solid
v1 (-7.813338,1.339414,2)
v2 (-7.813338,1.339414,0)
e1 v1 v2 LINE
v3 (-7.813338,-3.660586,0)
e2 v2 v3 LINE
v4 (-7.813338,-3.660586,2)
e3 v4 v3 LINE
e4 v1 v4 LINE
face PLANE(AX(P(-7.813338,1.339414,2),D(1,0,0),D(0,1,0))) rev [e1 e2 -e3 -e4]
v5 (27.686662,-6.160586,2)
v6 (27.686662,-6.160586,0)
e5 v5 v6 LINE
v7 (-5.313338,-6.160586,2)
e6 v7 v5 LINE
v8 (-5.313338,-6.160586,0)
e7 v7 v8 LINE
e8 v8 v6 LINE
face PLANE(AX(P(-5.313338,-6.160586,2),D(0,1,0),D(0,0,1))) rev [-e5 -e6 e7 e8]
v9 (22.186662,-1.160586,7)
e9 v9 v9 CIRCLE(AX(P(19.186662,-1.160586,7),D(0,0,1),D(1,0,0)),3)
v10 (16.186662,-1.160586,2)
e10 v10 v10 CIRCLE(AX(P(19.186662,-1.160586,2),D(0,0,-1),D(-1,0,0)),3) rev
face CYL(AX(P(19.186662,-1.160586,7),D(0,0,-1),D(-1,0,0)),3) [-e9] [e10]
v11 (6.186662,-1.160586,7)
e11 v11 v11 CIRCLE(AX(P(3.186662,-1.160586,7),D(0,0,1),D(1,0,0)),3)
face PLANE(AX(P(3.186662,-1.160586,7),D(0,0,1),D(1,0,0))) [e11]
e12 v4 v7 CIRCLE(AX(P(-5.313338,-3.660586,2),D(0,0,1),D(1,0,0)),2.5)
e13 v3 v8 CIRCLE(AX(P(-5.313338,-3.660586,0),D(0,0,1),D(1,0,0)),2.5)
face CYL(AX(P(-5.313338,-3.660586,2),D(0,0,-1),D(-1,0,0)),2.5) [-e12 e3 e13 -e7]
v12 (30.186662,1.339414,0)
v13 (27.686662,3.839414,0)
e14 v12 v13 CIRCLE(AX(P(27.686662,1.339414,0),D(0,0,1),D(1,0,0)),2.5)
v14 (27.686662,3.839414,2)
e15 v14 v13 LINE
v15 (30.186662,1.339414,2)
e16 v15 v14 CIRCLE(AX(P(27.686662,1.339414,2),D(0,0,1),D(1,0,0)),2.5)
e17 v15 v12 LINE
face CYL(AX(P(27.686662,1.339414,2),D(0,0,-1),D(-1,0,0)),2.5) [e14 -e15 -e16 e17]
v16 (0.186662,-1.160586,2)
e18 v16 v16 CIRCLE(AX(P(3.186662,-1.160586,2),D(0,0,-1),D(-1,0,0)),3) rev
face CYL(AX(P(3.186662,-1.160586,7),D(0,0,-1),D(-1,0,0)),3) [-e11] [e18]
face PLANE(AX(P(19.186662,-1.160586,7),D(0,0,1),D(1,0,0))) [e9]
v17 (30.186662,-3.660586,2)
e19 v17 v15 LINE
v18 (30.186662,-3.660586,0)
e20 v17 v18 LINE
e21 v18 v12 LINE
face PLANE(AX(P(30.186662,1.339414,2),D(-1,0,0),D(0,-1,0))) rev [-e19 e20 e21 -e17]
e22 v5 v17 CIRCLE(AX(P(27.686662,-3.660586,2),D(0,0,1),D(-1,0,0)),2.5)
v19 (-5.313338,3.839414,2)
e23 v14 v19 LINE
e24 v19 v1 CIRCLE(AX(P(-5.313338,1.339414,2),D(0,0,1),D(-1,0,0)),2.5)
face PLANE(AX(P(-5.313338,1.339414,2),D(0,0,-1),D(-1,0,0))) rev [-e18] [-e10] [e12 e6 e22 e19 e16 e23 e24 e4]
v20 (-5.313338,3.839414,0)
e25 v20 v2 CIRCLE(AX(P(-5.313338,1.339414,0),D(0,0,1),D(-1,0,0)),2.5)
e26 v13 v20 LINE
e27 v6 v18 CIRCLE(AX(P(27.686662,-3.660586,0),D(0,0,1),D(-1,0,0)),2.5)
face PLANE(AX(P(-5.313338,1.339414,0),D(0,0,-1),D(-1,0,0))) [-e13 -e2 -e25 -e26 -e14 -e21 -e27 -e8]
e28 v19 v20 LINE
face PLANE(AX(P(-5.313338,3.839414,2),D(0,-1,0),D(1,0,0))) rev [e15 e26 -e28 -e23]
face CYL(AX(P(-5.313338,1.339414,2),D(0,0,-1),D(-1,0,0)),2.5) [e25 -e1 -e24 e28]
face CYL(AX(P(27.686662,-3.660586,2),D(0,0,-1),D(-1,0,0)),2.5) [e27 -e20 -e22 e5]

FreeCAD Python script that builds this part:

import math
import FreeCAD as App
import Part
import Sketcher
Q = App.Units.Quantity

doc = App.newDocument("Part")
params = doc.addObject("Spreadsheet::Sheet", "Params")
for row, (alias, value) in enumerate([
    ("sketch1_radius", "2.5 mm"),
    ("sketch1_width", "33 mm"),
    ("sketch1_height", "5 mm"),
    ("pad1_length", "2 mm"),
    ("sketch2_diameter", "6 mm"),
    ("pad2_length", "5 mm"),
], start=1):
    params.set(f"A{row}", alias)
    params.set(f"B{row}", "=" + value)
    params.setAlias(f"B{row}", alias)

body = doc.addObject("PartDesign::Body", "Body")

sketch1 = body.newObject("Sketcher::SketchObject", "Sketch")
sketch1.AttachmentSupport = (doc.getObject("XY_Plane"), [""])
sketch1.MapMode = "FlatFace"
sketch1.addGeometry([
    Part.LineSegment(App.Vector(27.7, 3.8, 0), App.Vector(-5.3, 3.8, 0)),
    Part.ArcOfCircle(Part.Circle(App.Vector(-5.3, 1.3, 0), App.Vector(0, 0, 1), 2.5), math.radians(90), math.radians(180)),
    Part.LineSegment(App.Vector(-7.8, 1.3, 0), App.Vector(-7.8, -3.7, 0)),
    Part.ArcOfCircle(Part.Circle(App.Vector(-5.3, -3.7, 0), App.Vector(0, 0, 1), 2.5), math.radians(180), math.radians(270)),
    Part.LineSegment(App.Vector(-5.3, -6.2, 0), App.Vector(27.7, -6.2, 0)),
    Part.ArcOfCircle(Part.Circle(App.Vector(27.7, -3.7, 0), App.Vector(0, 0, 1), 2.5), math.radians(-90), math.radians(0)),
    Part.LineSegment(App.Vector(30.2, -3.7, 0), App.Vector(30.2, 1.3, 0)),
    Part.ArcOfCircle(Part.Circle(App.Vector(27.7, 1.3, 0), App.Vector(0, 0, 1), 2.5), math.radians(0), math.radians(90)),
], False)
sketch1.addConstraint([
    Sketcher.Constraint("Tangent", 0, 2, 1, 1),
    Sketcher.Constraint("Tangent", 1, 2, 2, 1),
    Sketcher.Constraint("Tangent", 2, 2, 3, 1),
    Sketcher.Constraint("Tangent", 3, 2, 4, 1),
    Sketcher.Constraint("Tangent", 4, 2, 5, 1),
    Sketcher.Constraint("Tangent", 5, 2, 6, 1),
    Sketcher.Constraint("Tangent", 6, 2, 7, 1),
    Sketcher.Constraint("Tangent", 7, 2, 0, 1),
    Sketcher.Constraint("Horizontal", 0),
    Sketcher.Constraint("Vertical", 2),
    Sketcher.Constraint("Horizontal", 4),
    Sketcher.Constraint("Vertical", 6),
    Sketcher.Constraint("Equal", 1, 3),
    Sketcher.Constraint("Equal", 3, 5),
    Sketcher.Constraint("Equal", 5, 7),
    Sketcher.Constraint("Radius", 1, Q("2.5 mm")),
    Sketcher.Constraint("DistanceX", 0, 2, 0, 1, Q("33 mm")),
    Sketcher.Constraint("DistanceY", 2, 2, 2, 1, Q("5 mm")),
    Sketcher.Constraint("DistanceX", 1, 3, -1, 1, Q("5.313338 mm")),
    Sketcher.Constraint("DistanceY", -1, 1, 1, 3, Q("1.339414 mm")),
])
sketch1.setExpression("Constraints[15]", "Params.sketch1_radius")
sketch1.setExpression("Constraints[16]", "Params.sketch1_width")
sketch1.setExpression("Constraints[17]", "Params.sketch1_height")
pad1 = body.newObject("PartDesign::Pad", "Pad")
pad1.Profile = sketch1
pad1.setExpression("Length", "Params.pad1_length")

sketch2 = body.newObject("Sketcher::SketchObject", "Sketch001")
sketch2.AttachmentSupport = (doc.getObject("XY_Plane"), [""])
sketch2.MapMode = "FlatFace"
sketch2.AttachmentOffset = App.Placement(App.Vector(0, 0, 2), App.Rotation())
sketch2.addGeometry([
    Part.Circle(App.Vector(3.2, -1.2, 0), App.Vector(0, 0, 1), 3),
    Part.Circle(App.Vector(19.2, -1.2, 0), App.Vector(0, 0, 1), 3),
], False)
sketch2.addConstraint([
    Sketcher.Constraint("Equal", 0, 1),
    Sketcher.Constraint("Horizontal", 0, 3, 1, 3),
    Sketcher.Constraint("Diameter", 0, Q("6 mm")),
    Sketcher.Constraint("DistanceX", 0, 3, 1, 3, Q("16 mm")),
    Sketcher.Constraint("DistanceX", -1, 1, 0, 3, Q("3.186662 mm")),
    Sketcher.Constraint("DistanceY", 0, 3, -1, 1, Q("1.160586 mm")),
])
sketch2.setExpression("Constraints[2]", "Params.sketch2_diameter")
pad2 = body.newObject("PartDesign::Pad", "Pad001")
pad2.Profile = sketch2
pad2.setExpression("Length", "Params.pad2_length")

doc.recompute()
